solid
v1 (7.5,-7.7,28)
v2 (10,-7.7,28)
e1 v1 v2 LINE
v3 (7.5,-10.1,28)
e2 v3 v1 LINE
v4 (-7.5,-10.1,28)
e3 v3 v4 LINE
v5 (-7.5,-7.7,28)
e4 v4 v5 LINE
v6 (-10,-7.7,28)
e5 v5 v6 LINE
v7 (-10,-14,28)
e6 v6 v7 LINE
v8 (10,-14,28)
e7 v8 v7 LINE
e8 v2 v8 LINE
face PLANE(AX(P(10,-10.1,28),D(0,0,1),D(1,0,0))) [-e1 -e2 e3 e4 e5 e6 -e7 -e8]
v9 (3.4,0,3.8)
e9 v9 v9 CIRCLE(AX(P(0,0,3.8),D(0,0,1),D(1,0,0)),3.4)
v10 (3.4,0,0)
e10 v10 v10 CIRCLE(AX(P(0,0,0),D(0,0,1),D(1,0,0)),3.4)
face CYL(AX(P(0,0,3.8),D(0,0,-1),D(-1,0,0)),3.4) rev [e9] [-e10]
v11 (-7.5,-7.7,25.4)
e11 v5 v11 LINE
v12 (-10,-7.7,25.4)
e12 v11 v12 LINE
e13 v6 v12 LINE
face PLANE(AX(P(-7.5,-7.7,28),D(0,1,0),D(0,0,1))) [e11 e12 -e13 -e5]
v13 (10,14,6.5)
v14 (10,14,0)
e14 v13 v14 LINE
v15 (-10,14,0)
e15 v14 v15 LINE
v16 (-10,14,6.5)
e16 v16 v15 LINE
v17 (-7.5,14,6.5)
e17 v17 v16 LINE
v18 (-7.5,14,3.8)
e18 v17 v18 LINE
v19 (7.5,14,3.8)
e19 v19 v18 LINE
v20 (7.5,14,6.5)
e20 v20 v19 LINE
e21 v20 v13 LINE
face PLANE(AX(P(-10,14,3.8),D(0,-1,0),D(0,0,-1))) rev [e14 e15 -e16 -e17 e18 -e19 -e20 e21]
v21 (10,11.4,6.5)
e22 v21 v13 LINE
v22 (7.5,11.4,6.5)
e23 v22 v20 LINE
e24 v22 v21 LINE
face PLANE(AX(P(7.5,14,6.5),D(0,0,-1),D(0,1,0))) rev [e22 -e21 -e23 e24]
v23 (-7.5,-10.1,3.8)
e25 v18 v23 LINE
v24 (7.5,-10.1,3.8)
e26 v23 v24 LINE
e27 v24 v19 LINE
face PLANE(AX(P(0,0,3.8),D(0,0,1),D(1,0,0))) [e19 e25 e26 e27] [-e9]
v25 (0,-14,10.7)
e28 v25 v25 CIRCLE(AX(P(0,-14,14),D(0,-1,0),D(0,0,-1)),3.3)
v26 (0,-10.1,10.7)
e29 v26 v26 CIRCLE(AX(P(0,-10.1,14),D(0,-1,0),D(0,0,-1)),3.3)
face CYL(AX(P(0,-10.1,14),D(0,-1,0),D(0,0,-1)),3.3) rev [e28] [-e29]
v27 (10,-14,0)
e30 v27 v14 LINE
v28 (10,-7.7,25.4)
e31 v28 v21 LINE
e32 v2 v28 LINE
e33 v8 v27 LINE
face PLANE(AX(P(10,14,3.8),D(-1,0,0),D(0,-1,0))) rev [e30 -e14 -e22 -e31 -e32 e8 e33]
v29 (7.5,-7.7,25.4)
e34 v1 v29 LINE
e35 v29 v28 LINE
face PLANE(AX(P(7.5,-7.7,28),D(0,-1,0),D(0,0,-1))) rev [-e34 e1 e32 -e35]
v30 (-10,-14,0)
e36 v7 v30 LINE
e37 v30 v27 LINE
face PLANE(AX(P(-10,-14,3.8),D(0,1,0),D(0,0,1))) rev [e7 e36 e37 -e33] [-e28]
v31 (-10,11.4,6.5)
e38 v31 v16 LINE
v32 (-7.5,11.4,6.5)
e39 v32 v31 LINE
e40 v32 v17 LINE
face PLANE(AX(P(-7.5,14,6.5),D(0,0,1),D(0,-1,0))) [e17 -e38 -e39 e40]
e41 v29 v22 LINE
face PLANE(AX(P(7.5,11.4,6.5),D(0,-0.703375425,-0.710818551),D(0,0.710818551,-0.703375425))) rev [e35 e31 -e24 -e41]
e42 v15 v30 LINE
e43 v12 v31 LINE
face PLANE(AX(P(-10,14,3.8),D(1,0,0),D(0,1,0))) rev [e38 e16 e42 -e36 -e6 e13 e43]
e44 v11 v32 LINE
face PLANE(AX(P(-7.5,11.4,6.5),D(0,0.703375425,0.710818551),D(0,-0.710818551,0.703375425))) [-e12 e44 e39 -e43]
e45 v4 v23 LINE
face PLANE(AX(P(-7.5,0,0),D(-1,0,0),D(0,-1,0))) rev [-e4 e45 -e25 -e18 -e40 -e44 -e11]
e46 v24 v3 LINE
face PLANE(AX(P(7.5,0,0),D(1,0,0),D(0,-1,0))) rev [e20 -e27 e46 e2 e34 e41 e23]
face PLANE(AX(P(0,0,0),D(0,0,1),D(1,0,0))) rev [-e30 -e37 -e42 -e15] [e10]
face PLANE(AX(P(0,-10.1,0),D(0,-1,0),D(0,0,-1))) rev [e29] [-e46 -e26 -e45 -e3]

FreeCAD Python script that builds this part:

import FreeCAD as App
import Part
import Sketcher
Q = App.Units.Quantity


def add_polygon(sketch, points):
    """Adds a closed chain of lines whose ends are joined by coincident constraints."""
    first, n = sketch.GeometryCount, len(points)
    for a, b in zip(points, points[1:] + points[:1]):
        sketch.addGeometry(Part.LineSegment(App.Vector(*a, 0), App.Vector(*b, 0)), False)
    for i in range(n):
        sketch.addConstraint(Sketcher.Constraint("Coincident", first + i, 2, first + (i + 1) % n, 1))

doc = App.newDocument("Part")
body = doc.addObject("PartDesign::Body", "Body")

sketch1 = body.newObject("Sketcher::SketchObject", "Sketch")
sketch1.AttachmentSupport = (doc.getObject("XY_Plane"), [""])
sketch1.MapMode = "FlatFace"
add_polygon(sketch1, [(-10, 14), (-10, -14), (10, -14), (10, 14)])
sketch1.addGeometry(Part.Circle(App.Vector(0, 0, 0), App.Vector(0, 0, 1), 3.4), False)
sketch1.addConstraint([
    Sketcher.Constraint("Vertical", 0),
    Sketcher.Constraint("Horizontal", 1),
    Sketcher.Constraint("Vertical", 2),
    Sketcher.Constraint("Horizontal", 3),
    Sketcher.Constraint("Coincident", 4, 3, -1, 1),
    Sketcher.Constraint("Symmetric", 0, 2, 2, 2, -1, 1),
    Sketcher.Constraint("Diameter", 4, Q("6.8 mm")),
    Sketcher.Constraint("DistanceX", 1, 1, 1, 2, Q("20 mm")),
    Sketcher.Constraint("DistanceY", 0, 2, 0, 1, Q("28 mm")),
])
pad1 = body.newObject("PartDesign::Pad", "Pad")
pad1.Profile = sketch1
pad1.Length = 3.8

sketch2 = body.newObject("Sketcher::SketchObject", "Sketch001")
sketch2.AttachmentSupport = (doc.getObject("XZ_Plane"), [""])
sketch2.MapMode = "FlatFace"
sketch2.AttachmentOffset = App.Placement(App.Vector(0, 0, 14), App.Rotation())
add_polygon(sketch2, [(-10, 28), (-10, 0), (10, 0), (10, 28)])
sketch2.addGeometry(Part.Circle(App.Vector(0, 14, 0), App.Vector(0, 0, 1), 3.3), False)
sketch2.addConstraint([
    Sketcher.Constraint("Vertical", 0),
    Sketcher.Constraint("Horizontal", 1),
    Sketcher.Constraint("Vertical", 2),
    Sketcher.Constraint("Horizontal", 3),
    Sketcher.Constraint("Symmetric", 0, 2, 1, 2, -1, 1),
    Sketcher.Constraint("PointOnObject", 4, 3, -2),
    Sketcher.Constraint("Diameter", 4, Q("6.6 mm")),
    Sketcher.Constraint("DistanceX", 1, 1, 1, 2, Q("20 mm")),
    Sketcher.Constraint("DistanceY", 0, 2, 0, 1, Q("28 mm")),
    Sketcher.Constraint("DistanceY", -1, 1, 4, 3, Q("14 mm")),
])
pad2 = body.newObject("PartDesign::Pad", "Pad001")
pad2.Profile = sketch2
pad2.Length = 3.9
pad2.Reversed = True

sketch3 = body.newObject("Sketcher::SketchObject", "Sketch002")
sketch3.AttachmentSupport = (doc.getObject("YZ_Plane"), [""])
sketch3.MapMode = "FlatFace"
sketch3.AttachmentOffset = App.Placement(App.Vector(0, 0, -10), App.Rotation())
add_polygon(sketch3, [(14, 0), (-10.1, 0), (-10.1, 6.5), (14, 6.5)])
sketch3.addConstraint([
    Sketcher.Constraint("Horizontal", 0),
    Sketcher.Constraint("Vertical", 1),
    Sketcher.Constraint("Horizontal", 2),
    Sketcher.Constraint("Vertical", 3),
    Sketcher.Constraint("PointOnObject", 0, 2, -1),
    Sketcher.Constraint("DistanceX", 0, 2, 0, 1, Q("24.1 mm")),
    Sketcher.Constraint("DistanceY", 1, 1, 1, 2, Q("6.5 mm")),
    Sketcher.Constraint("DistanceX", -1, 1, 2, 2, Q("14 mm")),
])
pad3 = body.newObject("PartDesign::Pad", "Pad002")
pad3.Profile = sketch3
pad3.Length = 2.5
doc.recompute()

mirrored = body.newObject("PartDesign::Mirrored", "Mirrored")
mirrored.Originals = [pad3]
mirrored.MirrorPlane = (doc.getObject("YZ_Plane"), [""])
body.Tip = mirrored

sketch4 = body.newObject("Sketcher::SketchObject", "Sketch003")
sketch4.AttachmentSupport = (doc.getObject("YZ_Plane"), [""])
sketch4.MapMode = "FlatFace"
sketch4.AttachmentOffset = App.Placement(App.Vector(0, 0, -10), App.Rotation())
add_polygon(sketch4, [(-7.7, 0), (-14, 0), (-14, 28), (-7.7, 28)])
sketch4.addConstraint([
    Sketcher.Constraint("Horizontal", 0),
    Sketcher.Constraint("Vertical", 1),
    Sketcher.Constraint("Horizontal", 2),
    Sketcher.Constraint("Vertical", 3),
    Sketcher.Constraint("PointOnObject", 0, 2, -1),
    Sketcher.Constraint("DistanceY", 1, 1, 1, 2, Q("28 mm")),
    Sketcher.Constraint("DistanceX", 0, 2, 0, 1, Q("6.3 mm")),
    Sketcher.Constraint("DistanceX", 0, 2, -1, 1, Q("14 mm")),
])
pad4 = body.newObject("PartDesign::Pad", "Pad003")
pad4.Profile = sketch4
pad4.Length = 2.5
doc.recompute()

mirrored2 = body.newObject("PartDesign::Mirrored", "Mirrored001")
mirrored2.Originals = [pad4]
mirrored2.MirrorPlane = (doc.getObject("YZ_Plane"), [""])
body.Tip = mirrored2

sketch5 = body.newObject("Sketcher::SketchObject", "Sketch004")
sketch5.AttachmentSupport = (doc.getObject("YZ_Plane"), [""])
sketch5.MapMode = "FlatFace"
sketch5.AttachmentOffset = App.Placement(App.Vector(0, 0, -10), App.Rotation())
add_polygon(sketch5, [(-7.7, 25.4), (11.4, 6.5), (-7.7, 6.5)])
sketch5.addConstraint([
    Sketcher.Constraint("Horizontal", 1),
    Sketcher.Constraint("Vertical", 2),
    Sketcher.Constraint("DistanceX", 1, 2, 1, 1, Q("19.1 mm")),
    Sketcher.Constraint("DistanceY", 2, 1, 2, 2, Q("18.9 mm")),
    Sketcher.Constraint("DistanceX", -1, 1, 0, 2, Q("11.4 mm")),
    Sketcher.Constraint("DistanceY", -1, 1, 0, 2, Q("6.5 mm")),
])
pad5 = body.newObject("PartDesign::Pad", "Pad004")
pad5.Profile = sketch5
pad5.Length = 2.5
doc.recompute()

mirrored3 = body.newObject("PartDesign::Mirrored", "Mirrored002")
mirrored3.Originals = [pad5]
mirrored3.MirrorPlane = (doc.getObject("YZ_Plane"), [""])
body.Tip = mirrored3

doc.recompute()
